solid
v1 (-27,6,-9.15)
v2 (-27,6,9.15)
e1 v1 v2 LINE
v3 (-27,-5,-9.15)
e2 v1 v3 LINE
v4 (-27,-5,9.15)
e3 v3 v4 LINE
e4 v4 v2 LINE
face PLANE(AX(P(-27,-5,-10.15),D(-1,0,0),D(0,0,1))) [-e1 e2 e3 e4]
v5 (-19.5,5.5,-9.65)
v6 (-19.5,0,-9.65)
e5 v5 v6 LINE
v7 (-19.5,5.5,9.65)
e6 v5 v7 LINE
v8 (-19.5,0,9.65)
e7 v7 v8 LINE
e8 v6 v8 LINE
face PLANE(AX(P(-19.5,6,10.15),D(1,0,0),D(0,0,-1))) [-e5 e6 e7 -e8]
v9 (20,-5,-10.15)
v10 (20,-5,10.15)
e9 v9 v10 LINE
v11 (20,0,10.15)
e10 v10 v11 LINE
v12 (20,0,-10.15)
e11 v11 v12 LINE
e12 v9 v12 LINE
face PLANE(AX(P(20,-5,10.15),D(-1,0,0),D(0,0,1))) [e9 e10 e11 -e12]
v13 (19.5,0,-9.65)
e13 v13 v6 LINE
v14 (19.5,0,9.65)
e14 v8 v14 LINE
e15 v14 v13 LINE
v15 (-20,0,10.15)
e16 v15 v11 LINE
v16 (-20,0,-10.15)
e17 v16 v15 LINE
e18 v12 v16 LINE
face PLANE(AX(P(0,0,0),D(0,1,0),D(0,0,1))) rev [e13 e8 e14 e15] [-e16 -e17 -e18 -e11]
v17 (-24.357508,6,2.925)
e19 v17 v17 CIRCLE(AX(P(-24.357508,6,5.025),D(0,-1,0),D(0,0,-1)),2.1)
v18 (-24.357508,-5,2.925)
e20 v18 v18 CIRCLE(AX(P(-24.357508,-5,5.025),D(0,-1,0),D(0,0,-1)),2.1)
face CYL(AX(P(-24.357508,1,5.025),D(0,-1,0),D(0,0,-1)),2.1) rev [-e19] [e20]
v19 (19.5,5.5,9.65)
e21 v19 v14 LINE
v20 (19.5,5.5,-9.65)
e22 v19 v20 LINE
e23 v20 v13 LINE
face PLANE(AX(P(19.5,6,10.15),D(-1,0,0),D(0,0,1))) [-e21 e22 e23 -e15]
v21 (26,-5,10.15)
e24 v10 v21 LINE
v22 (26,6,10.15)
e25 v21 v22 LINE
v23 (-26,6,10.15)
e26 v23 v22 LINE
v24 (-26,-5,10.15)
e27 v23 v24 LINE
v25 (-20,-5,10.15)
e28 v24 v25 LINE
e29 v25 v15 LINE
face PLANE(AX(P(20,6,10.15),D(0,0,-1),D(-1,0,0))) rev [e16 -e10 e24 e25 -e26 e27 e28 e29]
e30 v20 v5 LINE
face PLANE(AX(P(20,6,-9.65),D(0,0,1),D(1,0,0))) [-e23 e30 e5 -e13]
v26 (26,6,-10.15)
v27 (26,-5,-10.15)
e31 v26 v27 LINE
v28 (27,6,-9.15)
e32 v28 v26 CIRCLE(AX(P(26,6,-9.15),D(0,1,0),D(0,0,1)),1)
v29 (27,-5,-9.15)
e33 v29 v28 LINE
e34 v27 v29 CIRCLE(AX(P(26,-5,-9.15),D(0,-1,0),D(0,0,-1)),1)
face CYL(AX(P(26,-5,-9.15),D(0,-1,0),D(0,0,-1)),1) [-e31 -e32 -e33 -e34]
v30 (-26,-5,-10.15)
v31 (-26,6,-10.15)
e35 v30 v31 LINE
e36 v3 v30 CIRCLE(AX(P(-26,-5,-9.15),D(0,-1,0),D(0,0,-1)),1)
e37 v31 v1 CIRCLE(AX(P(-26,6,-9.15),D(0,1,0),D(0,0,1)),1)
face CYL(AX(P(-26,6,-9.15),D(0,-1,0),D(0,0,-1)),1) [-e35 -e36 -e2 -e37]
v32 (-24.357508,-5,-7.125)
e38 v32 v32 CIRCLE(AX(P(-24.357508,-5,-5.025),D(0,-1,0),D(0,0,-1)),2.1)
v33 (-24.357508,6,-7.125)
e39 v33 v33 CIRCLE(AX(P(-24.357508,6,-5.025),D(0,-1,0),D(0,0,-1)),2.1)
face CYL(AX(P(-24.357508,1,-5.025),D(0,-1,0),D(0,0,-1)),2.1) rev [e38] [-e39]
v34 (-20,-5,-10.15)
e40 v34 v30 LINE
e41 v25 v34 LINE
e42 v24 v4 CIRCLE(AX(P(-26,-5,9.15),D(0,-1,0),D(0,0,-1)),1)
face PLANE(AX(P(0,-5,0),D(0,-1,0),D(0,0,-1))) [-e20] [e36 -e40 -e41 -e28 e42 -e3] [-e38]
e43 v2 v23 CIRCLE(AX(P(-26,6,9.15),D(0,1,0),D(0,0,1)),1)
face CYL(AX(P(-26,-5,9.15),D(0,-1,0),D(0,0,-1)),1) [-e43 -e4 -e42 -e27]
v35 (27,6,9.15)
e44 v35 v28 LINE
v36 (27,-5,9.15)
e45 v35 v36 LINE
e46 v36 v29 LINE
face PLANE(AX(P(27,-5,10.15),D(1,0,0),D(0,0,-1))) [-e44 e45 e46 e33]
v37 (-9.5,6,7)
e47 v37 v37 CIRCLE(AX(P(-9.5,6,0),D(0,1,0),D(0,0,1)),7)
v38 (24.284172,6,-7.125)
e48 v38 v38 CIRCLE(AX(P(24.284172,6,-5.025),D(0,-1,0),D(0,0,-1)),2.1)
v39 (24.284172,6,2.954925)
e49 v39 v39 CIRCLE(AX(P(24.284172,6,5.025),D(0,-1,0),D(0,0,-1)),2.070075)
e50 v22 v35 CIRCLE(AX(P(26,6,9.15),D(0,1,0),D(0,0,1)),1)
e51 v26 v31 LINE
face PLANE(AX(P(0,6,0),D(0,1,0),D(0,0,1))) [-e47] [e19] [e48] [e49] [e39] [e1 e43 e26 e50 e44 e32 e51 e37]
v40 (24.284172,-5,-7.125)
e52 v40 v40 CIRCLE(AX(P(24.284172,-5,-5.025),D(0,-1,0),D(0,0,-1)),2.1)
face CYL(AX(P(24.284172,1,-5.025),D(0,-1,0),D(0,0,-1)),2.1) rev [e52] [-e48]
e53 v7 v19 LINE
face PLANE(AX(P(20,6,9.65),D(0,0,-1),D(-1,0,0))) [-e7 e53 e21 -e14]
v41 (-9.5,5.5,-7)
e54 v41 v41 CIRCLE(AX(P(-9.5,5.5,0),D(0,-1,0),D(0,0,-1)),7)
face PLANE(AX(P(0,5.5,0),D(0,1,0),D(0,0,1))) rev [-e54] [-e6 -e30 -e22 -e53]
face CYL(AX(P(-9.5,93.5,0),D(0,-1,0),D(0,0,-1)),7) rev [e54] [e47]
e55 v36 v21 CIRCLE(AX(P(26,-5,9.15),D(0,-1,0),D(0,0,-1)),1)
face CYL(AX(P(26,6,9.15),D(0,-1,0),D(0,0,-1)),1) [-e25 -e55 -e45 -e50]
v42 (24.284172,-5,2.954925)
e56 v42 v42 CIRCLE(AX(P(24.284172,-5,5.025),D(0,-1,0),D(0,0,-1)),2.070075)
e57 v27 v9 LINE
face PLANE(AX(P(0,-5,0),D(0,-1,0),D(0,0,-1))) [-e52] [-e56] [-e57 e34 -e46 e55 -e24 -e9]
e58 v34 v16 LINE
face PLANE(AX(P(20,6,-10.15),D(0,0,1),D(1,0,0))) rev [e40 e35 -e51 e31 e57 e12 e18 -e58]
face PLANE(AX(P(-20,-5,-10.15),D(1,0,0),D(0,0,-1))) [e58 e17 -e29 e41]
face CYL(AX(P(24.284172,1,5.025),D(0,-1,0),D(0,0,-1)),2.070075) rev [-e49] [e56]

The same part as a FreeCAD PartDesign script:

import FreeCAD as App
import Part
import Sketcher


def edges_at(feature, points):
    """Names of the edges that pass closest to the given points."""
    edges = feature.Shape.Edges
    near = lambda p: min(range(len(edges)), key=lambda i: edges[i].distToShape(Part.Vertex(*p))[0])
    return sorted({f"Edge{near(p) + 1}" for p in points})


def faces_at(feature, points):
    """Names of the faces that lie closest to the given points."""
    faces = feature.Shape.Faces
    near = lambda p: min(range(len(faces)), key=lambda i: faces[i].distToShape(Part.Vertex(*p))[0])
    return sorted({f"Face{near(p) + 1}" for p in points})

doc = App.newDocument("Part")
body = doc.addObject("PartDesign::Body", "Body")

# Sketch on XZ plane
sketch1 = body.newObject("Sketcher::SketchObject", "Sketch")
sketch1.AttachmentSupport = (doc.getObject("XZ_Plane"), [""])
sketch1.MapMode = "FlatFace"
sketch1.addGeometry([
    Part.LineSegment(App.Vector(-20, -10.15, 0), App.Vector(-20, 10.15, 0)),
    Part.LineSegment(App.Vector(-20, 10.15, 0), App.Vector(20, 10.15, 0)),
    Part.LineSegment(App.Vector(20, 10.15, 0), App.Vector(20, -10.15, 0)),
    Part.LineSegment(App.Vector(20, -10.15, 0), App.Vector(-20, -10.15, 0)),
], False)
sketch1.addConstraint([
    Sketcher.Constraint("Coincident", 0, 2, 1, 1),
    Sketcher.Constraint("Coincident", 1, 2, 2, 1),
    Sketcher.Constraint("Coincident", 2, 2, 3, 1),
    Sketcher.Constraint("Coincident", 3, 2, 0, 1),
    Sketcher.Constraint("Vertical", 0),
    Sketcher.Constraint("Horizontal", 1),
    Sketcher.Constraint("Vertical", 2),
    Sketcher.Constraint("Horizontal", 3),
    Sketcher.Constraint("Symmetric", 0, 2, 2, 2, -1, 1),
    Sketcher.Constraint("DistanceX", 1, 1, 1, 2, 40.0),
    Sketcher.Constraint("DistanceY", 0, 1, 0, 2, 20.3),
])
pad1 = body.newObject("PartDesign::Pad", "Pad")
pad1.Profile = sketch1
pad1.Length = 6
pad1.Reversed = True
doc.recompute()

thickness = body.newObject("PartDesign::Thickness", "Thickness")
thickness.Base = (pad1, faces_at(pad1, [(0, 0, 0)]))
thickness.Value = 0.5
thickness.Reversed = True
thickness.Join = "Intersection"

# Sketch on XZ plane
sketch2 = body.newObject("Sketcher::SketchObject", "Sketch001")
sketch2.AttachmentSupport = (doc.getObject("XZ_Plane"), [""])
sketch2.MapMode = "FlatFace"
sketch2.AttachmentOffset = App.Placement(App.Vector(0, 0, -6), App.Rotation())
sketch2.addGeometry([
    Part.LineSegment(App.Vector(-27, -10.15, 0), App.Vector(-27, 10.15, 0)),  # 0
    Part.LineSegment(App.Vector(-27, 10.15, 0), App.Vector(-20, 10.15, 0)),  # 1
    Part.LineSegment(App.Vector(-20, 10.15, 0), App.Vector(-20, -10.15, 0)),  # 2
    Part.LineSegment(App.Vector(-20, -10.15, 0), App.Vector(-27, -10.15, 0)),  # 3
    Part.LineSegment(App.Vector(20, -10.15, 0), App.Vector(20, 10.15, 0)),  # 4
    Part.LineSegment(App.Vector(20, 10.15, 0), App.Vector(27, 10.15, 0)),  # 5
    Part.LineSegment(App.Vector(27, 10.15, 0), App.Vector(27, -10.15, 0)),  # 6
    Part.LineSegment(App.Vector(27, -10.15, 0), App.Vector(20, -10.15, 0)),  # 7
], False)
sketch2.addConstraint([
    Sketcher.Constraint("Coincident", 0, 2, 1, 1),
    Sketcher.Constraint("Coincident", 1, 2, 2, 1),
    Sketcher.Constraint("Coincident", 2, 2, 3, 1),
    Sketcher.Constraint("Coincident", 3, 2, 0, 1),
    Sketcher.Constraint("Coincident", 4, 2, 5, 1),
    Sketcher.Constraint("Coincident", 5, 2, 6, 1),
    Sketcher.Constraint("Coincident", 6, 2, 7, 1),
    Sketcher.Constraint("Coincident", 7, 2, 4, 1),
    Sketcher.Constraint("Vertical", 0),
    Sketcher.Constraint("Horizontal", 1),
    Sketcher.Constraint("Vertical", 2),
    Sketcher.Constraint("Horizontal", 3),
    Sketcher.Constraint("Vertical", 4),
    Sketcher.Constraint("Horizontal", 5),
    Sketcher.Constraint("Vertical", 6),
    Sketcher.Constraint("Horizontal", 7),
    Sketcher.Constraint("Symmetric", 2, 2, 4, 2, -1, 1),
    Sketcher.Constraint("Symmetric", 0, 2, 6, 2, -1, 1),
    Sketcher.Constraint("Horizontal", 1, 2, 4, 2),
    Sketcher.Constraint("DistanceX", 1, 1, 1, 2, 7.0),
    Sketcher.Constraint("DistanceY", 0, 1, 0, 2, 20.3),
    Sketcher.Constraint("DistanceX", 0, 2, -1, 1, 27.0),
])
pad2 = body.newObject("PartDesign::Pad", "Pad001")
pad2.Profile = sketch2
pad2.Length = 11
doc.recompute()

fillet = body.newObject("PartDesign::Fillet", "Fillet")
fillet.Base = (pad2, edges_at(pad2, [
    (-27, 0.5, 10.15),
    (-27, 0.5, -10.15),
    (27, 0.5, -10.15),
    (27, 0.5, 10.15),
]))
fillet.Radius = 1

# Sketch on XZ plane
sketch3 = body.newObject("Sketcher::SketchObject", "Sketch002")
sketch3.AttachmentSupport = (doc.getObject("XZ_Plane"), [""])
sketch3.MapMode = "FlatFace"
sketch3.AttachmentOffset = App.Placement(App.Vector(0, 0, 5), App.Rotation())
sketch3.addGeometry([
    Part.Circle(App.Vector(-24.357508, 5.025, 0), App.Vector(0, 0, 1), 2.1),
    Part.Circle(App.Vector(-24.357508, -5.025, 0), App.Vector(0, 0, 1), 2.1),
    Part.Circle(App.Vector(24.284172, 5.025, 0), App.Vector(0, 0, 1), 2.070075),
    Part.Circle(App.Vector(24.284172, -5.025, 0), App.Vector(0, 0, 1), 2.1),
], False)
sketch3.addConstraint([
    Sketcher.Constraint("Equal", 0, 1),
    Sketcher.Constraint("Equal", 1, 3),
    Sketcher.Constraint("Symmetric", 0, 3, 1, 3, -1),
    Sketcher.Constraint("Symmetric", 2, 3, 3, 3, -1),
    Sketcher.Constraint("Horizontal", 0, 3, 2, 3),
    Sketcher.Constraint("Diameter", 0, 4.2),
    Sketcher.Constraint("Diameter", 2, 4.140151),
    Sketcher.Constraint("DistanceY", 1, 3, 0, 3, 10.05),
    Sketcher.Constraint("DistanceX", 0, 3, -1, 1, 24.357508),
    Sketcher.Constraint("DistanceX", -1, 1, 2, 3, 24.284172),
])
pocket1 = body.newObject("PartDesign::Pocket", "Pocket")
pocket1.Profile = sketch3
pocket1.Length = 6

# Sketch on XZ plane
sketch4 = body.newObject("Sketcher::SketchObject", "Sketch003")
sketch4.AttachmentSupport = (doc.getObject("XZ_Plane"), [""])
sketch4.MapMode = "FlatFace"
sketch4.AttachmentOffset = App.Placement(App.Vector(0, 0, -5.5), App.Rotation())
sketch4.addGeometry(Part.Circle(App.Vector(-9.5, 0, 0), App.Vector(0, 0, 1), 7), False)
sketch4.addConstraint([
    Sketcher.Constraint("PointOnObject", 0, 3, -1),
    Sketcher.Constraint("Diameter", 0, 14.0),
    Sketcher.Constraint("DistanceX", 0, 3, -1, 1, 9.5),
])
pocket2 = body.newObject("PartDesign::Pocket", "Pocket001")
pocket2.Profile = sketch4
pocket2.Length = 88

# Sketch on XZ plane
sketch5 = body.newObject("Sketcher::SketchObject", "Sketch004")
sketch5.AttachmentSupport = (doc.getObject("XZ_Plane"), [""])
sketch5.MapMode = "FlatFace"
sketch5.AttachmentOffset = App.Placement(App.Vector(0, 0, -1), App.Rotation())
sketch5.addGeometry([
    Part.Circle(App.Vector(24.284172, -5.025, 0), App.Vector(0, 0, 1), 2.1),
    Part.Circle(App.Vector(24.284172, 5.025, 0), App.Vector(0, 0, 1), 2.070075),
    Part.Circle(App.Vector(-24.357508, 5.025, 0), App.Vector(0, 0, 1), 2.1),
    Part.Circle(App.Vector(-24.357508, -5.025, 0), App.Vector(0, 0, 1), 2.1),
], False)
sketch5.addConstraint([
    Sketcher.Constraint("Equal", 0, 2),
    Sketcher.Constraint("Equal", 2, 3),
    Sketcher.Constraint("Symmetric", 0, 3, 1, 3, -1),
    Sketcher.Constraint("Symmetric", 2, 3, 3, 3, -1),
    Sketcher.Constraint("Horizontal", 1, 3, 2, 3),
    Sketcher.Constraint("Diameter", 0, 4.2),
    Sketcher.Constraint("Diameter", 1, 4.140151),
    Sketcher.Constraint("DistanceY", 0, 3, 1, 3, 10.05),
    Sketcher.Constraint("DistanceX", -1, 1, 0, 3, 24.284172),
    Sketcher.Constraint("DistanceX", 2, 3, -1, 1, 24.357508),
])
pocket3 = body.newObject("PartDesign::Pocket", "Pocket002")
pocket3.Profile = sketch5
pocket3.Type = "ThroughAll"
pocket3.Midplane = True

doc.recompute()
